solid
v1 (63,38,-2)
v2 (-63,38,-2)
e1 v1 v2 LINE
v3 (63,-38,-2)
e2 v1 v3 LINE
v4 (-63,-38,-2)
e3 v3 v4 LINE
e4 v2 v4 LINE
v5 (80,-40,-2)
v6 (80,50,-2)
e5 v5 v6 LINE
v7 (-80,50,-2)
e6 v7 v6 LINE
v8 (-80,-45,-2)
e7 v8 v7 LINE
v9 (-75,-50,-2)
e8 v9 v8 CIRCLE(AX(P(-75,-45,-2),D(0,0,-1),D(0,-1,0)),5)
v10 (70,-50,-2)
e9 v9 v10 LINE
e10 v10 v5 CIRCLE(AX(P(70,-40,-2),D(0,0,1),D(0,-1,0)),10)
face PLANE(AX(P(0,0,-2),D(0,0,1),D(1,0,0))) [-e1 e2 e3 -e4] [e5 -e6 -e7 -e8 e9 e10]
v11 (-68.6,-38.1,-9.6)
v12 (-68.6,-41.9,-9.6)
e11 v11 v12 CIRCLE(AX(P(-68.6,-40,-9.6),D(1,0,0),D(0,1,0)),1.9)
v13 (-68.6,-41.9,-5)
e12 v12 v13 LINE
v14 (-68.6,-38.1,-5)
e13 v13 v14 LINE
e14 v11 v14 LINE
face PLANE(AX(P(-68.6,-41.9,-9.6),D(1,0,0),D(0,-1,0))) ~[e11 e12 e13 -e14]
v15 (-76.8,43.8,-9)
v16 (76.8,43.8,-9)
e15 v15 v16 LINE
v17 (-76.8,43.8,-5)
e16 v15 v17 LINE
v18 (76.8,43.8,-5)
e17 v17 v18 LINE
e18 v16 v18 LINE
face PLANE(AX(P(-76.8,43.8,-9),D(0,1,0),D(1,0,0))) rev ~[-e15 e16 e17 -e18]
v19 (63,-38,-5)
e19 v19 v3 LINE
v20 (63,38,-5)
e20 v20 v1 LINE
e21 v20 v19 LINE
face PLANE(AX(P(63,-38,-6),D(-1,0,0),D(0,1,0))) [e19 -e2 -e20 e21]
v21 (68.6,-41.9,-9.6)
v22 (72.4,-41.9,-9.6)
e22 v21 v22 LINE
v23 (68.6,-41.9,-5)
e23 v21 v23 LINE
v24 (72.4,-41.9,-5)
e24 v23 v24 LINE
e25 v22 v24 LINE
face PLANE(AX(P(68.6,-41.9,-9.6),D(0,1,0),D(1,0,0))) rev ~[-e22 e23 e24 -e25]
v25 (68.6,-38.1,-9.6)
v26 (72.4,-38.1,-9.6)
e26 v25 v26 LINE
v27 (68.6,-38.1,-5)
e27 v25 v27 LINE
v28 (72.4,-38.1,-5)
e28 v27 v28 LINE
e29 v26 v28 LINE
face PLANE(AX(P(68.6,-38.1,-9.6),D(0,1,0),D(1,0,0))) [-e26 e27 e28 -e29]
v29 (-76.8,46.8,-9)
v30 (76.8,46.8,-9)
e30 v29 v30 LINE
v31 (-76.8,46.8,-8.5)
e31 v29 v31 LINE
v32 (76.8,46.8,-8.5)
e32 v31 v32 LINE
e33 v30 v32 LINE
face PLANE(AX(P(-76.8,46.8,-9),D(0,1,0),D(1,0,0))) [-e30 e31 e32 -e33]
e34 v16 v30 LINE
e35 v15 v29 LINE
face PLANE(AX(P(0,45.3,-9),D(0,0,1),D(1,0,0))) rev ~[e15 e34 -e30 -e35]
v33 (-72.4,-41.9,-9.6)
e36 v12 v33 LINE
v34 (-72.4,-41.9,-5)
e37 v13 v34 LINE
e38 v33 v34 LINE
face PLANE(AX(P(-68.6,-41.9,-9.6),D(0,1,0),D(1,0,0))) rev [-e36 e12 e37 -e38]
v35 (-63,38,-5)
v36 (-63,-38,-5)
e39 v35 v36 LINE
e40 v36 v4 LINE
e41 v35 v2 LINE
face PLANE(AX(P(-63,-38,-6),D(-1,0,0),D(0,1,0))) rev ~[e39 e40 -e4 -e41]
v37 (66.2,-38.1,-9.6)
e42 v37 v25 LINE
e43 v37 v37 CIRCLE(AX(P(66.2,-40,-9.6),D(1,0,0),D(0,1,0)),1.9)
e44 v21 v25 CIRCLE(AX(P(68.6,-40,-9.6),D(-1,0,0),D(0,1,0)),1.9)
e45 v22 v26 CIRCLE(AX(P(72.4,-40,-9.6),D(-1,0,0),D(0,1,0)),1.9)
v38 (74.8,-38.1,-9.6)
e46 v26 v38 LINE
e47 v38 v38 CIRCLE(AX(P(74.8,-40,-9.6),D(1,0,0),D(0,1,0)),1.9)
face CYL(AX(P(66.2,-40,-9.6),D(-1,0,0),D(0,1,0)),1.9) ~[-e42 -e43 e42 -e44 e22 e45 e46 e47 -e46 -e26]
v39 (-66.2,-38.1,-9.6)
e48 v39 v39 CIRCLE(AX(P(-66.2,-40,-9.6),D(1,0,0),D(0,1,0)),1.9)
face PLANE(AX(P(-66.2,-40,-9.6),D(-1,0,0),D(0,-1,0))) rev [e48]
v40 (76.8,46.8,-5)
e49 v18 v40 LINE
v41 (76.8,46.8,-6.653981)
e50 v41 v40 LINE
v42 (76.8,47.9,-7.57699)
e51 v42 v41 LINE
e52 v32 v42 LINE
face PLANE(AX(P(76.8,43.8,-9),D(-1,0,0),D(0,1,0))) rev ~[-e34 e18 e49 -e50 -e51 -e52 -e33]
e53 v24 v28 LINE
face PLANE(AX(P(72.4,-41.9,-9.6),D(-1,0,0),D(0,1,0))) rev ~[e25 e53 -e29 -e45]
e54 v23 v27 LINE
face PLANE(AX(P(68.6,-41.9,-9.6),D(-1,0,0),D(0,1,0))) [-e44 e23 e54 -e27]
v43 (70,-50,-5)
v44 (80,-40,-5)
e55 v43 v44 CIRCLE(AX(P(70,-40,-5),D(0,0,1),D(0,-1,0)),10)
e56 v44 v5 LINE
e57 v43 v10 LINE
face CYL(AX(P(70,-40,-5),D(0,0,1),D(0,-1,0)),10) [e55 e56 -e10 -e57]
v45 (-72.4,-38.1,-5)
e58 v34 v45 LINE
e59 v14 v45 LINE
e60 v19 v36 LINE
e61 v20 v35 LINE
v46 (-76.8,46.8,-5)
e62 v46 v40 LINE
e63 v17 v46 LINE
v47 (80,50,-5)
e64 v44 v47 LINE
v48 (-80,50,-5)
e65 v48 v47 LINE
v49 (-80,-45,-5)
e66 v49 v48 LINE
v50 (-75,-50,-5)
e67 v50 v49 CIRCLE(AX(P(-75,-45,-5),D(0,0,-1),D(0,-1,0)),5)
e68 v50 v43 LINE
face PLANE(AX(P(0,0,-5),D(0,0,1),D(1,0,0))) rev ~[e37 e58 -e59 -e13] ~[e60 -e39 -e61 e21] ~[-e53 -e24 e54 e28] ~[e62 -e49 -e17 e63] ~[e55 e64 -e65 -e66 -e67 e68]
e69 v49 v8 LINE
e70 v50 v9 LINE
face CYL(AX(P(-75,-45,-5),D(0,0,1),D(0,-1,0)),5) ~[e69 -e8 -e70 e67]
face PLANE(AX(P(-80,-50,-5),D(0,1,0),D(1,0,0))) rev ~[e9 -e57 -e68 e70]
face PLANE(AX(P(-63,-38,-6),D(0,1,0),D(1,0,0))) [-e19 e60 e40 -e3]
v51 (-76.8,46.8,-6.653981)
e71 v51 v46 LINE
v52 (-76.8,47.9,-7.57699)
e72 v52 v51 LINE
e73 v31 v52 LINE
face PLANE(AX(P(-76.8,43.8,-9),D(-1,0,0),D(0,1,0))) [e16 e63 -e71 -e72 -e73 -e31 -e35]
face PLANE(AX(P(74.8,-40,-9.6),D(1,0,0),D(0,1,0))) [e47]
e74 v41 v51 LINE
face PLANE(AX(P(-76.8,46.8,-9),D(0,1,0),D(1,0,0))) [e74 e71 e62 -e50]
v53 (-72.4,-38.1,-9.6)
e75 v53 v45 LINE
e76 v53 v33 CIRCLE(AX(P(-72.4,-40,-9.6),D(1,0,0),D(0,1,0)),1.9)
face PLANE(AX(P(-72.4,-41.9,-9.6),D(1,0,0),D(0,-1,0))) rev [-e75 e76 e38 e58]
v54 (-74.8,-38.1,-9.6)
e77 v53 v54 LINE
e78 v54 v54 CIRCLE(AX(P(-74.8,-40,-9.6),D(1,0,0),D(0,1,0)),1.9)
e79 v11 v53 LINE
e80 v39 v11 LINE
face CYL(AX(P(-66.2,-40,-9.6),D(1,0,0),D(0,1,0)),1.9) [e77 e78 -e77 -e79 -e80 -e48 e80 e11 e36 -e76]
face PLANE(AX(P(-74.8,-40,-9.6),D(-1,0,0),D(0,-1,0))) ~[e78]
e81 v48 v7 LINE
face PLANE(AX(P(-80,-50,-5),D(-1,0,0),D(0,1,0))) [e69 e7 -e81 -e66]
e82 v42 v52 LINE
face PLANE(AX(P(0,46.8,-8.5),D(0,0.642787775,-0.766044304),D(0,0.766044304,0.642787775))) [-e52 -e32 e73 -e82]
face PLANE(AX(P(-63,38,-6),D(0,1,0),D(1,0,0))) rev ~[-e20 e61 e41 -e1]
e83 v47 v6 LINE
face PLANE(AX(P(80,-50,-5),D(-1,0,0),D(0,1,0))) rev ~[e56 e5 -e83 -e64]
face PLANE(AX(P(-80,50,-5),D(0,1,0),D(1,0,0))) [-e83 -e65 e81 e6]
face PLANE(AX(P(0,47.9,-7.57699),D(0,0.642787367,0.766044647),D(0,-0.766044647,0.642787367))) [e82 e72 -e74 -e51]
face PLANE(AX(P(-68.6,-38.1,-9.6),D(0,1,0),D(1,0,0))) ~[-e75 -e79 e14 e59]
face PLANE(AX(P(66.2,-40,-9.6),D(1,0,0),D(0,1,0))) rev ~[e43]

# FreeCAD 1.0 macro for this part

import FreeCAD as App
import Part
import Sketcher
Q = App.Units.Quantity


def edges_at(feature, points):
    """Names of the edges that pass closest to the given points."""
    edges = feature.Shape.Edges
    near = lambda p: min(range(len(edges)), key=lambda i: edges[i].distToShape(Part.Vertex(*p))[0])
    return sorted({f"Edge{near(p) + 1}" for p in points})


def add_polygon(sketch, points):
    """Adds a closed chain of lines whose ends are joined by coincident constraints."""
    first, n = sketch.GeometryCount, len(points)
    for a, b in zip(points, points[1:] + points[:1]):
        sketch.addGeometry(Part.LineSegment(App.Vector(*a, 0), App.Vector(*b, 0)), False)
    for i in range(n):
        sketch.addConstraint(Sketcher.Constraint("Coincident", first + i, 2, first + (i + 1) % n, 1))

doc = App.newDocument("Part")
body = doc.addObject("PartDesign::Body", "Body")

sketch1 = doc.addObject("Sketcher::SketchObject", "Sketch")
body.addObject(sketch1)
sketch1.AttachmentSupport = (doc.XY_Plane, [""])
sketch1.MapMode = "FlatFace"
sketch1.AttachmentOffset = App.Placement(App.Vector(0, 0, -5), App.Rotation())
add_polygon(sketch1, [(-80, 50), (-80, -50), (80, -50), (80, 50)])
sketch1.addConstraint(Sketcher.Constraint("Vertical", 0))
sketch1.addConstraint(Sketcher.Constraint("Horizontal", 1))
sketch1.addConstraint(Sketcher.Constraint("Vertical", 2))
sketch1.addConstraint(Sketcher.Constraint("Horizontal", 3))
sketch1.addConstraint(Sketcher.Constraint("Symmetric", 0, 2, 2, 2, -1, 1))
sketch1.addConstraint(Sketcher.Constraint("DistanceX", 1, 1, 1, 2, 160.0))
sketch1.addConstraint(Sketcher.Constraint("DistanceY", 0, 2, 0, 1, 100.0))
pad1 = doc.addObject("PartDesign::Pad", "Pad")
body.addObject(pad1)
pad1.Profile = sketch1
pad1.Length = 3

sketch2 = doc.addObject("Sketcher::SketchObject", "Sketch001")
body.addObject(sketch2)
sketch2.AttachmentSupport = (doc.XY_Plane, [""])
sketch2.MapMode = "FlatFace"
sketch2.AttachmentOffset = App.Placement(App.Vector(0, 0, -6), App.Rotation())
add_polygon(sketch2, [(-63, 38), (-63, -38), (63, -38), (63, 38)])
sketch2.addConstraint(Sketcher.Constraint("Vertical", 0))
sketch2.addConstraint(Sketcher.Constraint("Horizontal", 1))
sketch2.addConstraint(Sketcher.Constraint("Vertical", 2))
sketch2.addConstraint(Sketcher.Constraint("Horizontal", 3))
sketch2.addConstraint(Sketcher.Constraint("Symmetric", 0, 2, 2, 2, -1, 1))
sketch2.addConstraint(Sketcher.Constraint("DistanceX", 1, 1, 1, 2, 126.0))
sketch2.addConstraint(Sketcher.Constraint("DistanceY", 0, 2, 0, 1, 76.0))
pocket1 = doc.addObject("PartDesign::Pocket", "Pocket")
body.addObject(pocket1)
pocket1.Profile = sketch2
pocket1.Length = 5
pocket1.Reversed = True

sketch3 = doc.addObject("Sketcher::SketchObject", "Sketch002")
body.addObject(sketch3)
sketch3.AttachmentSupport = (doc.XY_Plane, [""])
sketch3.MapMode = "FlatFace"
sketch3.AttachmentOffset = App.Placement(App.Vector(0, 0, -9), App.Rotation())
add_polygon(sketch3, [(-76.8, 46.8), (-76.8, 43.8), (76.8, 43.8), (76.8, 46.8)])
sketch3.addConstraint(Sketcher.Constraint("Vertical", 0))
sketch3.addConstraint(Sketcher.Constraint("Horizontal", 1))
sketch3.addConstraint(Sketcher.Constraint("Vertical", 2))
sketch3.addConstraint(Sketcher.Constraint("Horizontal", 3))
sketch3.addConstraint(Sketcher.Constraint("DistanceY", 0, 2, 0, 1, 3.0))
sketch3.addConstraint(Sketcher.Constraint("DistanceX", 1, 1, 1, 2, 153.6))
sketch3.addConstraint(Sketcher.Constraint("DistanceX", 0, 2, -1, 1, 76.8))
sketch3.addConstraint(Sketcher.Constraint("DistanceY", -1, 1, 0, 2, 43.8))
pad2 = doc.addObject("PartDesign::Pad", "Pad001")
body.addObject(pad2)
pad2.Profile = sketch3
pad2.Length = 4

sketch4 = doc.addObject("Sketcher::SketchObject", "Sketch003")
body.addObject(sketch4)
sketch4.AttachmentSupport = (doc.XY_Plane, [""])
sketch4.MapMode = "FlatFace"
sketch4.AttachmentOffset = App.Placement(App.Vector(0, 0, -9.6), App.Rotation())
add_polygon(sketch4, [(68.6, -38.1), (68.6, -41.9), (72.4, -41.9), (72.4, -38.1)])
sketch4.addConstraint(Sketcher.Constraint("Vertical", 0))
sketch4.addConstraint(Sketcher.Constraint("Horizontal", 1))
sketch4.addConstraint(Sketcher.Constraint("Vertical", 2))
sketch4.addConstraint(Sketcher.Constraint("Horizontal", 3))
sketch4.addConstraint(Sketcher.Constraint("Equal", 3, 0))
sketch4.addConstraint(Sketcher.Constraint("DistanceX", 1, 1, 1, 2, 3.8))
sketch4.addConstraint(Sketcher.Constraint("DistanceX", -1, 1, 0, 2, 68.6))
sketch4.addConstraint(Sketcher.Constraint("DistanceY", 0, 2, -1, 1, 41.9))
pad3 = doc.addObject("PartDesign::Pad", "Pad002")
body.addObject(pad3)
pad3.Profile = sketch4
pad3.Length = 4.6

sketch5 = doc.addObject("Sketcher::SketchObject", "Sketch004")
body.addObject(sketch5)
sketch5.AttachmentSupport = (doc.YZ_Plane, [""])
sketch5.MapMode = "FlatFace"
sketch5.AttachmentOffset = App.Placement(App.Vector(0, 0, 66.2), App.Rotation())
sketch5.addGeometry(Part.Circle(App.Vector(-40, -9.6, 0), App.Vector(0, 0, 1), 1.9), False)
sketch5.addConstraint(Sketcher.Constraint("Diameter", 0, 3.8))
sketch5.addConstraint(Sketcher.Constraint("DistanceX", 0, 3, -1, 1, 40.0))
sketch5.addConstraint(Sketcher.Constraint("DistanceY", 0, 3, -1, 1, 9.6))
pad4 = doc.addObject("PartDesign::Pad", "Pad003")
body.addObject(pad4)
pad4.Profile = sketch5
pad4.Length = 8.6
doc.recompute()

mirrored = doc.addObject("PartDesign::Mirrored", "Mirrored")
body.addObject(mirrored)
mirrored.Originals = [pad3, pad4]
mirrored.MirrorPlane = (doc.YZ_Plane, [""])
body.Tip = mirrored
doc.recompute()

fillet = doc.addObject("PartDesign::Fillet", "Fillet")
body.addObject(fillet)
fillet.Base = (mirrored, edges_at(mirrored, [(80, -50, -3.5)]))
fillet.Radius = 10
doc.recompute()

fillet2 = doc.addObject("PartDesign::Fillet", "Fillet001")
body.addObject(fillet2)
fillet2.Base = (fillet, edges_at(fillet, [(-80, -50, -3.5)]))
fillet2.Radius = 5

sketch6 = doc.addObject("Sketcher::SketchObject", "Sketch005")
body.addObject(sketch6)
sketch6.AttachmentSupport = (doc.YZ_Plane, [""])
sketch6.MapMode = "FlatFace"
add_polygon(sketch6, [(46.8, -6.653981), (46.8, -8.5), (47.9, -7.57699)])
sketch6.addConstraint(Sketcher.Constraint("Vertical", 0))
sketch6.addConstraint(Sketcher.Constraint("Equal", 1, 2))
sketch6.addConstraint(Sketcher.Constraint("Angle", 1, Q("40.000012 deg")))
sketch6.addConstraint(Sketcher.Constraint("DistanceX", -1, 1, 0, 2, 46.8))
sketch6.addConstraint(Sketcher.Constraint("DistanceY", 0, 2, -1, 1, 8.5))
sketch6.addConstraint(Sketcher.Constraint("DistanceX", -1, 1, 1, 2, 47.9))
pad5 = doc.addObject("PartDesign::Pad", "Pad004")
body.addObject(pad5)
pad5.Profile = sketch6
pad5.Length = 153.6
pad5.Midplane = True

doc.recompute()
